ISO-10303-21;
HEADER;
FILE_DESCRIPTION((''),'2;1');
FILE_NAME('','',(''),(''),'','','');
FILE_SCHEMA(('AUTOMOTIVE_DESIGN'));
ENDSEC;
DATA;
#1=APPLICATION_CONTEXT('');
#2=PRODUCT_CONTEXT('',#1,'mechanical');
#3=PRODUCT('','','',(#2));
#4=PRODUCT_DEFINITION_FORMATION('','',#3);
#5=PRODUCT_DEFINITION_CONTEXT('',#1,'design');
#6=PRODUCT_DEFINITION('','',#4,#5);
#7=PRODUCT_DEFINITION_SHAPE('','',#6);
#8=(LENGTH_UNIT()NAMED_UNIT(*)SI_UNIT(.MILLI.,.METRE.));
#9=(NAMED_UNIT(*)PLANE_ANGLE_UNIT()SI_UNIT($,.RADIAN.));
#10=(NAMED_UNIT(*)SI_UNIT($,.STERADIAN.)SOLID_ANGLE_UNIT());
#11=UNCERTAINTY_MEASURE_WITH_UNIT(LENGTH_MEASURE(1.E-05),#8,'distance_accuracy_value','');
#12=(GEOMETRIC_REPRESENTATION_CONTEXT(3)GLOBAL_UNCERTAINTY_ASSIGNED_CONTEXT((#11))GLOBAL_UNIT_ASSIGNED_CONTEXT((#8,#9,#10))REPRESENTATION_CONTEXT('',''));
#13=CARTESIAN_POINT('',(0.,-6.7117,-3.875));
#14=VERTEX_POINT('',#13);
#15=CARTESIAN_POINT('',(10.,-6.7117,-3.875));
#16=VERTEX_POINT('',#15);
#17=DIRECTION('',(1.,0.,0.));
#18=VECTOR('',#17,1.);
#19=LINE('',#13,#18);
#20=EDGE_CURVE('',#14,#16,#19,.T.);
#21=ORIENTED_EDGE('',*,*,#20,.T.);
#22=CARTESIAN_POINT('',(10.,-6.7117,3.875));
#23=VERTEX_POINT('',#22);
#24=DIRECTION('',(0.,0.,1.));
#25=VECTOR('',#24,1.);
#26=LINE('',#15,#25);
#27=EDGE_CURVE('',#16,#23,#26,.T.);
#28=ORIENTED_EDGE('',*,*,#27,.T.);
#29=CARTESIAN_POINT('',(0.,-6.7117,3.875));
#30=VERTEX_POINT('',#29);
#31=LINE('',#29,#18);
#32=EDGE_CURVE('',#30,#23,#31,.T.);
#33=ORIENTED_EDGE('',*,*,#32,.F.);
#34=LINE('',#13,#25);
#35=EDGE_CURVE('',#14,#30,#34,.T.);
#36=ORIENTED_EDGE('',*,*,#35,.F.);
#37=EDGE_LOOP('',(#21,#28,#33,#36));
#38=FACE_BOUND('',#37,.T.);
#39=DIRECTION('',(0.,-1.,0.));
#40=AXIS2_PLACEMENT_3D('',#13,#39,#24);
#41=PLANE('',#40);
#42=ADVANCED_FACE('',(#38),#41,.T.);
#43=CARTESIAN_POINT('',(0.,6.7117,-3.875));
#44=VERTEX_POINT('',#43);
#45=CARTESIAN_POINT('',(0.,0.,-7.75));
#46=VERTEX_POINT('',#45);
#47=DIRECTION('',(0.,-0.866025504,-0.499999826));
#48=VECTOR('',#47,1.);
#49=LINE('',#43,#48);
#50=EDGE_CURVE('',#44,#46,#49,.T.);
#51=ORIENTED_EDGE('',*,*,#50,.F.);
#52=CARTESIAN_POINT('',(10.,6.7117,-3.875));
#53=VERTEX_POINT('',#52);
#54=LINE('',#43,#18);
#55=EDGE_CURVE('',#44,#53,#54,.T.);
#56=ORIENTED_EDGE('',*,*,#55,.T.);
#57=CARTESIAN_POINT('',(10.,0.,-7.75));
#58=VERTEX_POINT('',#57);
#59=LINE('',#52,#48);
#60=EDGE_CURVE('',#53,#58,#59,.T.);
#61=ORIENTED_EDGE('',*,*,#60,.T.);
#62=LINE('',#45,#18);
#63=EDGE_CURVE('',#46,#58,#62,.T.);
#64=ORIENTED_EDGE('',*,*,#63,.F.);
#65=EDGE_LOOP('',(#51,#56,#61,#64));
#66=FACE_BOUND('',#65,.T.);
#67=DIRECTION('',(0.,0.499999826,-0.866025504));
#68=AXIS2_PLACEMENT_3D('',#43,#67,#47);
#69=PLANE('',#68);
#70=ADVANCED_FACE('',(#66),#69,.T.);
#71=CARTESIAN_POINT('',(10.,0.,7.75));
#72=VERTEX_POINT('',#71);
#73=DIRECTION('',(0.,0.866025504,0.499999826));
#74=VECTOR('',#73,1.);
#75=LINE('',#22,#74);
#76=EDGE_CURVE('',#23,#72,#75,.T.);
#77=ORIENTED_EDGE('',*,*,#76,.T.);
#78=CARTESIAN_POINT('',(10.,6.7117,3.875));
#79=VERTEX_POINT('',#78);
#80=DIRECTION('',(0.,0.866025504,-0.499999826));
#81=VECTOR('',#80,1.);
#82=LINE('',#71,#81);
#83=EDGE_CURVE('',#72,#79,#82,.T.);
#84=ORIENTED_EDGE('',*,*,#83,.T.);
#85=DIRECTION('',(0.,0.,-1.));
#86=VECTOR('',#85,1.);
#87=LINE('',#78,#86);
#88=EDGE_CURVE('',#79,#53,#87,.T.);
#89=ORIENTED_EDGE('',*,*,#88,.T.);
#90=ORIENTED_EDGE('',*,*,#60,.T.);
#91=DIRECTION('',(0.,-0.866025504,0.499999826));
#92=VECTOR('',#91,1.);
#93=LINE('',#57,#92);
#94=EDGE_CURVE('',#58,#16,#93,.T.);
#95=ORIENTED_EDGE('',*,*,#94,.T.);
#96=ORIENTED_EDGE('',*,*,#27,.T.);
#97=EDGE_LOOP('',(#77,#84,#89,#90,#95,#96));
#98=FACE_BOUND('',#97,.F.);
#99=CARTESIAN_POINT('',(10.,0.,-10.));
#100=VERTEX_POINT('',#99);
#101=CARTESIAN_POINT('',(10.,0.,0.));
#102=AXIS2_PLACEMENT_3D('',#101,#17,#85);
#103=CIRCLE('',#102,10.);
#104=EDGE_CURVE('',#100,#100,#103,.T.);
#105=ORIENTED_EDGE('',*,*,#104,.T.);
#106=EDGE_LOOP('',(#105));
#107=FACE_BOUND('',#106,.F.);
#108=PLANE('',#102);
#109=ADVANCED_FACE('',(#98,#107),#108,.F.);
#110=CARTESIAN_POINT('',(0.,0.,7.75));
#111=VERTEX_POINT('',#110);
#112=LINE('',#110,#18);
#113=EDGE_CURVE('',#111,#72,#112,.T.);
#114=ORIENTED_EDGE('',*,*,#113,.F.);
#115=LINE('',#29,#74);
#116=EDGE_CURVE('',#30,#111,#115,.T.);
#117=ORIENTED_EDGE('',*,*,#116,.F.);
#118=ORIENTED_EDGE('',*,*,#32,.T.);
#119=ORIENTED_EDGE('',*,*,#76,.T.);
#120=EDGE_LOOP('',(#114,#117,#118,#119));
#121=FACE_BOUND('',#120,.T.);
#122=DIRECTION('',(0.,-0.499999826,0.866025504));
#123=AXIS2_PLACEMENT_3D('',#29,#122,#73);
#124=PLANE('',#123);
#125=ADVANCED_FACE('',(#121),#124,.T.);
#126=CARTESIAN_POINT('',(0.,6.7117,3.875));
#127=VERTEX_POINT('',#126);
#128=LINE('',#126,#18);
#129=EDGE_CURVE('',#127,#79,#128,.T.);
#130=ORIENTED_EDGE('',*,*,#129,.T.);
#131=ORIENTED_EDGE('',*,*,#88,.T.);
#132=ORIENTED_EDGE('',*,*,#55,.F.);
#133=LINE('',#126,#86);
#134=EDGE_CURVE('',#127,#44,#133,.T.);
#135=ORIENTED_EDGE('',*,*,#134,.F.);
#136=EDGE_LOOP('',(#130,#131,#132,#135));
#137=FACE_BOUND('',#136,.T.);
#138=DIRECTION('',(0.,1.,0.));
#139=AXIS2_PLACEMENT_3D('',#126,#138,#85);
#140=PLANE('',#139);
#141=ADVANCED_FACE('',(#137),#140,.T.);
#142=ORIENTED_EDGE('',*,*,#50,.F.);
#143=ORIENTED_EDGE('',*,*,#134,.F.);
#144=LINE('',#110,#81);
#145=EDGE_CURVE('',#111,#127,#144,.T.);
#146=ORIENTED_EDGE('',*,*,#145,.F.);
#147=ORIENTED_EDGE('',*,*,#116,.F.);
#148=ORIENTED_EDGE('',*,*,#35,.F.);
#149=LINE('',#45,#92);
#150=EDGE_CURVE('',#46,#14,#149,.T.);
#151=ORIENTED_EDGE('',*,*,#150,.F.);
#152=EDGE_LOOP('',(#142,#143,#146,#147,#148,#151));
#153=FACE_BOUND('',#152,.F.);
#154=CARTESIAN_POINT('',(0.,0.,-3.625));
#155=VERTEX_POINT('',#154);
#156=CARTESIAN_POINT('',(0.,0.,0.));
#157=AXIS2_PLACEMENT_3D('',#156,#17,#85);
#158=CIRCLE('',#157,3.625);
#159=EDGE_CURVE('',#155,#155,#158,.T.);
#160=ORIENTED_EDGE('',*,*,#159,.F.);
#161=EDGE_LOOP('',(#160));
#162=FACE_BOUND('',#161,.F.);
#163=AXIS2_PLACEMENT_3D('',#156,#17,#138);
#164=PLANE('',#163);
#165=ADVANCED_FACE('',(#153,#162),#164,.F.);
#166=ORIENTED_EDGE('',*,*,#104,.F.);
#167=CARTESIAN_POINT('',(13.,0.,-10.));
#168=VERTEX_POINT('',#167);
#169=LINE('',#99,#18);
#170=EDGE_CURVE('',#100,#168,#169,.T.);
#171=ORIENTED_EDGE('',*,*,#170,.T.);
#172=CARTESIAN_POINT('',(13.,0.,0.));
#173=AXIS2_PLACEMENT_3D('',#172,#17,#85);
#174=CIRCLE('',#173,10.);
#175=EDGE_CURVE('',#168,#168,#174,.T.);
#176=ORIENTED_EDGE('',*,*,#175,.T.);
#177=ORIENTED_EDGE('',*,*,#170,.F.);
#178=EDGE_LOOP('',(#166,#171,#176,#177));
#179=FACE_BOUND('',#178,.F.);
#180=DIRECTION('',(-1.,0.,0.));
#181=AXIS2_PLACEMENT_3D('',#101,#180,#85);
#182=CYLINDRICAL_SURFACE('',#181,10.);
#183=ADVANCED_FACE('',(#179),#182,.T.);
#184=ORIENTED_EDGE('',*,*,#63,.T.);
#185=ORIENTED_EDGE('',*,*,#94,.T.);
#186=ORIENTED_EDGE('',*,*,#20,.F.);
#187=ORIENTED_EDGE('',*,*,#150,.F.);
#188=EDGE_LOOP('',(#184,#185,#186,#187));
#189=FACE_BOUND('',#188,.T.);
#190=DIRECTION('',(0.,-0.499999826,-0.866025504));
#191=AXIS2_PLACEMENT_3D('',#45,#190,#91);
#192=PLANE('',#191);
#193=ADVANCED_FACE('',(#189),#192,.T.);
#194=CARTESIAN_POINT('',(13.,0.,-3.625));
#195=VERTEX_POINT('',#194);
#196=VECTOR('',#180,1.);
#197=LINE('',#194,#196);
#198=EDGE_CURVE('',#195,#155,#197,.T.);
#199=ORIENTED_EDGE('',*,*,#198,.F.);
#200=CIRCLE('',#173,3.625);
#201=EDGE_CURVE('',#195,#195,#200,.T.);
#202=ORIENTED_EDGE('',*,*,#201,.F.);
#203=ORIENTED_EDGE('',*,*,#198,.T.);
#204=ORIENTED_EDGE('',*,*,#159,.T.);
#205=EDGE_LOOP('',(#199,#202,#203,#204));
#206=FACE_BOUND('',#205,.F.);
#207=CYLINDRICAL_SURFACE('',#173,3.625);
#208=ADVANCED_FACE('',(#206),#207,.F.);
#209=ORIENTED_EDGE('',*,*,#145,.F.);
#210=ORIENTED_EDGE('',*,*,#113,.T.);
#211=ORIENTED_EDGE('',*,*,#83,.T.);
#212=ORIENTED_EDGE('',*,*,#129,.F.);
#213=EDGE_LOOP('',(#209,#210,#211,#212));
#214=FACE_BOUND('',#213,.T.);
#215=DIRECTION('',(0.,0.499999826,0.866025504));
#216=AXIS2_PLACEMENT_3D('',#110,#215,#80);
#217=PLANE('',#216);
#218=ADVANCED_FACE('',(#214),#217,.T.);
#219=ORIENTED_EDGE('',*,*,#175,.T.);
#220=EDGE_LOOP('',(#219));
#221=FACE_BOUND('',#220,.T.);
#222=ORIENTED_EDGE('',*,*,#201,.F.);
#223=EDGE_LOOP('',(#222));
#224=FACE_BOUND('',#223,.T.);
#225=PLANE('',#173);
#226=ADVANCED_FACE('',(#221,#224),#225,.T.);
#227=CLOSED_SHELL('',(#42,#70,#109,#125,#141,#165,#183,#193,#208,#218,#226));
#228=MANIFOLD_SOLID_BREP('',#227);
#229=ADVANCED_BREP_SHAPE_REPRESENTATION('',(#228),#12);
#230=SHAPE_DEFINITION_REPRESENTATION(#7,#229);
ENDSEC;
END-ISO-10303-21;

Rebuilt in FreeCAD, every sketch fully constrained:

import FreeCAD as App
import Part
import Sketcher

V = App.Vector


def add_polygon(sketch, points):
    """Adds a closed chain of lines whose ends are joined by coincident constraints."""
    first, n = sketch.GeometryCount, len(points)
    for a, b in zip(points, points[1:] + points[:1]):
        sketch.addGeometry(Part.LineSegment(App.Vector(*a, 0), App.Vector(*b, 0)), False)
    for i in range(n):
        sketch.addConstraint(Sketcher.Constraint("Coincident", first + i, 2, first + (i + 1) % n, 1))

doc = App.newDocument("Part")
body = doc.addObject("PartDesign::Body", "Body")

# Sketch on YZ plane
sketch1 = body.newObject("Sketcher::SketchObject", "Sketch")
sketch1.AttachmentSupport = (doc.getObject("YZ_Plane"), [""])
sketch1.MapMode = "FlatFace"
add_polygon(sketch1, [(7, 4), (0, 8), (-7, 4), (-7, -4), (0, -8), (7, -4)])  # lines 0-5
sketch1.addConstraint([
    Sketcher.Constraint("Vertical", 2),
    Sketcher.Constraint("Vertical", 5),
    Sketcher.Constraint("Symmetric", 0, 2, 3, 2, -1, 1),
    Sketcher.Constraint("Symmetric", 1, 2, 4, 2, -1, 1),
    Sketcher.Constraint("PointOnObject", 0, 2, -2),
    Sketcher.Constraint("Parallel", 0, 3),
    Sketcher.Constraint("Horizontal", 2, 2, 4, 2),
    Sketcher.Constraint("DistanceY", 2, 2, 2, 1, 7.75),
    Sketcher.Constraint("Distance", 0, 7.75),
    Sketcher.Constraint("DistanceY", -1, 1, 0, 2, 7.75),
])
pad1 = body.newObject("PartDesign::Pad", "Pad")
pad1.Profile = sketch1
pad1.Length = 10

# Sketch on YZ plane
sketch2 = body.newObject("Sketcher::SketchObject", "Sketch001")
sketch2.AttachmentSupport = (doc.getObject("YZ_Plane"), [""])
sketch2.MapMode = "FlatFace"
sketch2.AttachmentOffset = App.Placement(V(0, 0, 10), App.Rotation())
sketch2.addGeometry(Part.Circle(V(0, 0, 0), V(0, 0, 1), 10), False)
sketch2.addConstraint([
    Sketcher.Constraint("Coincident", 0, 3, -1, 1),
    Sketcher.Constraint("Diameter", 0, 20.0),
])
pad2 = body.newObject("PartDesign::Pad", "Pad001")
pad2.Profile = sketch2
pad2.Length = 3

# Sketch on YZ plane
sketch3 = body.newObject("Sketcher::SketchObject", "Sketch002")
sketch3.AttachmentSupport = (doc.getObject("YZ_Plane"), [""])
sketch3.MapMode = "FlatFace"
sketch3.AttachmentOffset = App.Placement(V(0, 0, 13), App.Rotation())
sketch3.addGeometry(Part.Circle(V(0, 0, 0), V(0, 0, 1), 3.6), False)
sketch3.addConstraint([
    Sketcher.Constraint("Coincident", 0, 3, -1, 1),
    Sketcher.Constraint("Diameter", 0, 7.25),
])
pocket1 = body.newObject("PartDesign::Pocket", "Pocket")
pocket1.Profile = sketch3
pocket1.Length = 15

doc.recompute()
